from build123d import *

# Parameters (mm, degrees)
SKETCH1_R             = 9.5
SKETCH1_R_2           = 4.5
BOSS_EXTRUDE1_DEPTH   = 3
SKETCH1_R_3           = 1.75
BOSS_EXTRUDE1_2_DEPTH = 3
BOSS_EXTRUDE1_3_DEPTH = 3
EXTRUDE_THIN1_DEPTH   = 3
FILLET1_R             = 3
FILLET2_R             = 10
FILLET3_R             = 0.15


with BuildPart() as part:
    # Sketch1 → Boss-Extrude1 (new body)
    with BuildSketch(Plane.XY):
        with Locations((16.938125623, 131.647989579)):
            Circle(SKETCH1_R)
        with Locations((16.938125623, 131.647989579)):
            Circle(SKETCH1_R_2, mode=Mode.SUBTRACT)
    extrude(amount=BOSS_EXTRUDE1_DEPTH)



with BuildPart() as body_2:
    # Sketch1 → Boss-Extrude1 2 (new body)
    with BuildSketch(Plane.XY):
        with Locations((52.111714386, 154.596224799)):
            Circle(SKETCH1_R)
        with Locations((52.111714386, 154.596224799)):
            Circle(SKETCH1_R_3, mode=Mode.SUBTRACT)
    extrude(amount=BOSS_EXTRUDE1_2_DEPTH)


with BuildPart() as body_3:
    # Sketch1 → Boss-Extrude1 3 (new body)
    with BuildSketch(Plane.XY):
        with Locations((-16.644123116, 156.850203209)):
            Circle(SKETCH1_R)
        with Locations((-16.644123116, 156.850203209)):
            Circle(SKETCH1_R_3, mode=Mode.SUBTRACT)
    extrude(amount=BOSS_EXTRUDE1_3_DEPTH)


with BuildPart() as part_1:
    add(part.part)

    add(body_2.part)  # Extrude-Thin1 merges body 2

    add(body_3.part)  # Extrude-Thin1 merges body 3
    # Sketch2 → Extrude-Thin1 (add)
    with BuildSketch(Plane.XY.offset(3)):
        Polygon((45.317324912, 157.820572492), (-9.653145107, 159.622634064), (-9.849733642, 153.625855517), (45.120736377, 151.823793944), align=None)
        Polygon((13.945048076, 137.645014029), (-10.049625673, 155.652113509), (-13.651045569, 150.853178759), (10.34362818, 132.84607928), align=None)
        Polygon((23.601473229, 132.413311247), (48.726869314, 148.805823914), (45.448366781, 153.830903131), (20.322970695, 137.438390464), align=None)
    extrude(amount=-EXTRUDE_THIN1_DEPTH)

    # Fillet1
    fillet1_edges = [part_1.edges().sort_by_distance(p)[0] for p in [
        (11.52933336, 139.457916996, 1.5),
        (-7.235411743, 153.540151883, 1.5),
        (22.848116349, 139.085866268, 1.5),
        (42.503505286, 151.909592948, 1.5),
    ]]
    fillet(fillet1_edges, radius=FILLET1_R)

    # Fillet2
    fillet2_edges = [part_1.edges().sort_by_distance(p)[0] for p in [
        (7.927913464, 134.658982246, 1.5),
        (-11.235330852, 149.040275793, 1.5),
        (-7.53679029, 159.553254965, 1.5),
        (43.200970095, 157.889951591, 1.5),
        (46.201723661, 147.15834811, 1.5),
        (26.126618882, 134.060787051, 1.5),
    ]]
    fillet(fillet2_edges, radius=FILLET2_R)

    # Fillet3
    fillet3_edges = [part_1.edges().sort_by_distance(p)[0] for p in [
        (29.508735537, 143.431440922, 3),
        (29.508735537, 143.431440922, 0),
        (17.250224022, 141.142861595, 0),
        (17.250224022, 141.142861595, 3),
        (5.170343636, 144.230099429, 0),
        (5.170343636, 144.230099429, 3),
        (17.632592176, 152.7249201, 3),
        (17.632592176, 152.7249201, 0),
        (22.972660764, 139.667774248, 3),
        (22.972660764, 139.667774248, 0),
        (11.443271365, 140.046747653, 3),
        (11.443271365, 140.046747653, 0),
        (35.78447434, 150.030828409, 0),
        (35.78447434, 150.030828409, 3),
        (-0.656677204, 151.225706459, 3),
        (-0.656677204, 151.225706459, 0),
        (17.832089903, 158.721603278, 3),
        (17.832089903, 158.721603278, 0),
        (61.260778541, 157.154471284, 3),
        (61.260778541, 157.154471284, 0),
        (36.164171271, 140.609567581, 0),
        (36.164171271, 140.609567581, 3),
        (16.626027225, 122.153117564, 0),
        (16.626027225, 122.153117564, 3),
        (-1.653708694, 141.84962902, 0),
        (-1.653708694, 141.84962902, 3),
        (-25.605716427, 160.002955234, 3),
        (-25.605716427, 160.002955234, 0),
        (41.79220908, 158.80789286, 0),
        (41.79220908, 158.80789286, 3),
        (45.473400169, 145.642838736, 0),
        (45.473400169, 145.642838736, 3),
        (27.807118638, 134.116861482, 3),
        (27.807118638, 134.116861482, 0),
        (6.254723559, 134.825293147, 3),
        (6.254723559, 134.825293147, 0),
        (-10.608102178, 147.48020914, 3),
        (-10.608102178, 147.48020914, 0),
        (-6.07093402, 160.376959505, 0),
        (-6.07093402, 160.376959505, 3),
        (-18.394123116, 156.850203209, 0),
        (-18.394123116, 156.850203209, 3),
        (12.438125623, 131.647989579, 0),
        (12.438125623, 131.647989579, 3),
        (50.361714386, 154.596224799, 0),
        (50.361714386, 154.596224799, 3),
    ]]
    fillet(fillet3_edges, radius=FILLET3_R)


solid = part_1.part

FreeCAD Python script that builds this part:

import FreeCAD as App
import Part
import Sketcher


def edges_at(feature, points):
    """Names of the edges that pass closest to the given points."""
    edges = feature.Shape.Edges
    near = lambda p: min(range(len(edges)), key=lambda i: edges[i].distToShape(Part.Vertex(*p))[0])
    return sorted({f"Edge{near(p) + 1}" for p in points})

doc = App.newDocument("Part")
body = doc.addObject("PartDesign::Body", "Body")

# Sketch on XY plane
sketch1 = body.newObject("Sketcher::SketchObject", "Sketch")
sketch1.AttachmentSupport = (doc.getObject("XY_Plane"), [""])
sketch1.MapMode = "FlatFace"
sketch1.addGeometry([
    Part.Circle(App.Vector(16.9, 131.6, 0), App.Vector(0, 0, 1), 9.5),
    Part.Circle(App.Vector(16.9, 131.6, 0), App.Vector(0, 0, 1), 4.5),
], False)
sketch1.addConstraint([
    Sketcher.Constraint("Coincident", 1, 3, 0, 3),
    Sketcher.Constraint("Diameter", 0, 19.0),
    Sketcher.Constraint("Diameter", 1, 9.0),
    Sketcher.Constraint("DistanceY", -1, 1, 0, 3, 131.64799),
    Sketcher.Constraint("DistanceX", -1, 1, 0, 3, 16.938126),
])
pad1 = body.newObject("PartDesign::Pad", "Pad")
pad1.Profile = sketch1
pad1.Length = 3
body2 = doc.addObject("PartDesign::Body", "Body001")

# Sketch on XY plane
sketch2 = body2.newObject("Sketcher::SketchObject", "Sketch001")
sketch2.AttachmentSupport = (doc.getObject("XY_Plane001"), [""])
sketch2.MapMode = "FlatFace"
sketch2.addGeometry([
    Part.Circle(App.Vector(52.1, 154.6, 0), App.Vector(0, 0, 1), 9.5),
    Part.Circle(App.Vector(52.1, 154.6, 0), App.Vector(0, 0, 1), 1.8),
], False)
sketch2.addConstraint([
    Sketcher.Constraint("Coincident", 1, 3, 0, 3),
    Sketcher.Constraint("Diameter", 0, 19.0),
    Sketcher.Constraint("Diameter", 1, 3.5),
    Sketcher.Constraint("DistanceX", -1, 1, 0, 3, 52.111714),
    Sketcher.Constraint("DistanceY", -1, 1, 0, 3, 154.596225),
])
pad2 = body2.newObject("PartDesign::Pad", "Pad001")
pad2.Profile = sketch2
pad2.Length = 3
body3 = doc.addObject("PartDesign::Body", "Body002")

# Sketch on XY plane
sketch3 = body3.newObject("Sketcher::SketchObject", "Sketch002")
sketch3.AttachmentSupport = (doc.getObject("XY_Plane002"), [""])
sketch3.MapMode = "FlatFace"
sketch3.addGeometry([
    Part.Circle(App.Vector(-16.6, 156.9, 0), App.Vector(0, 0, 1), 9.5),
    Part.Circle(App.Vector(-16.6, 156.9, 0), App.Vector(0, 0, 1), 1.8),
], False)
sketch3.addConstraint([
    Sketcher.Constraint("Coincident", 1, 3, 0, 3),
    Sketcher.Constraint("Diameter", 0, 19.0),
    Sketcher.Constraint("Diameter", 1, 3.5),
    Sketcher.Constraint("DistanceX", 0, 3, -1, 1, 16.644123),
    Sketcher.Constraint("DistanceY", -1, 1, 0, 3, 156.850203),
])
pad3 = body3.newObject("PartDesign::Pad", "Pad002")
pad3.Profile = sketch3
pad3.Length = 3
body.AllowCompound = True
doc.recompute()

boolean = body.newObject("PartDesign::Boolean", "Boolean")
boolean.Type = "Fuse"
boolean.addObjects([body2])
doc.recompute()

boolean2 = body.newObject("PartDesign::Boolean", "Boolean001")
boolean2.Type = "Fuse"
boolean2.addObjects([body3])

# Sketch on XY plane
sketch4 = body.newObject("Sketcher::SketchObject", "Sketch003")
sketch4.AttachmentSupport = (doc.getObject("XY_Plane"), [""])
sketch4.MapMode = "FlatFace"
sketch4.AttachmentOffset = App.Placement(App.Vector(0, 0, 3), App.Rotation())
sketch4.addGeometry([
    Part.LineSegment(App.Vector(20.32, 137.44, 0), App.Vector(23.6, 132.41, 0)),  # 0
    Part.LineSegment(App.Vector(23.6, 132.41, 0), App.Vector(48.73, 148.81, 0)),  # 1
    Part.LineSegment(App.Vector(48.73, 148.81, 0), App.Vector(45.45, 153.83, 0)),  # 2
    Part.LineSegment(App.Vector(45.45, 153.83, 0), App.Vector(45.18, 153.66, 0)),  # 3
    Part.LineSegment(App.Vector(45.18, 153.66, 0), App.Vector(45.32, 157.82, 0)),  # 4
    Part.LineSegment(App.Vector(45.32, 157.82, 0), App.Vector(-9.65, 159.62, 0)),  # 5
    Part.LineSegment(App.Vector(-9.65, 159.62, 0), App.Vector(-9.79, 155.46, 0)),  # 6
    Part.LineSegment(App.Vector(-9.79, 155.46, 0), App.Vector(-10.05, 155.65, 0)),  # 7
    Part.LineSegment(App.Vector(-10.05, 155.65, 0), App.Vector(-13.65, 150.85, 0)),  # 8
    Part.LineSegment(App.Vector(-13.65, 150.85, 0), App.Vector(10.34, 132.85, 0)),  # 9
    Part.LineSegment(App.Vector(10.34, 132.85, 0), App.Vector(13.95, 137.65, 0)),  # 10
    Part.LineSegment(App.Vector(13.95, 137.65, 0), App.Vector(-7.24, 153.54, 0)),  # 11
    Part.LineSegment(App.Vector(-7.24, 153.54, 0), App.Vector(42.5, 151.91, 0)),  # 12
    Part.LineSegment(App.Vector(42.5, 151.91, 0), App.Vector(20.32, 137.44, 0)),  # 13
], False)
sketch4.addConstraint([
    Sketcher.Constraint("Coincident", 0, 2, 1, 1),
    Sketcher.Constraint("Coincident", 1, 2, 2, 1),
    Sketcher.Constraint("Coincident", 2, 2, 3, 1),
    Sketcher.Constraint("Coincident", 3, 2, 4, 1),
    Sketcher.Constraint("Coincident", 4, 2, 5, 1),
    Sketcher.Constraint("Coincident", 5, 2, 6, 1),
    Sketcher.Constraint("Coincident", 6, 2, 7, 1),
    Sketcher.Constraint("Coincident", 7, 2, 8, 1),
    Sketcher.Constraint("Coincident", 8, 2, 9, 1),
    Sketcher.Constraint("Coincident", 9, 2, 10, 1),
    Sketcher.Constraint("Coincident", 10, 2, 11, 1),
    Sketcher.Constraint("Coincident", 11, 2, 12, 1),
    Sketcher.Constraint("Coincident", 12, 2, 13, 1),
    Sketcher.Constraint("Coincident", 13, 2, 0, 1),
    Sketcher.Constraint("Perpendicular", 0, 1),
    Sketcher.Constraint("Perpendicular", 1, 2),
    Sketcher.Constraint("Perpendicular", 2, 3),
    Sketcher.Constraint("Perpendicular", 4, 5),
    Sketcher.Constraint("Perpendicular", 5, 6),
    Sketcher.Constraint("Perpendicular", 7, 8),
    Sketcher.Constraint("Perpendicular", 8, 9),
    Sketcher.Constraint("Perpendicular", 9, 10),
    Sketcher.Constraint("Perpendicular", 10, 11),
    Sketcher.Constraint("Perpendicular", 6, 12),
    Sketcher.Constraint("Parallel", 3, 13),
    Sketcher.Constraint("Equal", 0, 2),
    Sketcher.Constraint("Equal", 2, 8),
    Sketcher.Constraint("Equal", 1, 9),
    Sketcher.Constraint("Equal", 8, 10),
    Sketcher.Constraint("Distance", 0, 6.0),
    Sketcher.Constraint("Distance", 1, 30.0),
    Sketcher.Constraint("Distance", 5, 55.0),
    Sketcher.Constraint("DistanceX", 7, 2, 0, 2, 33.651099),
    Sketcher.Constraint("DistanceX", 8, 2, 5, 2, 3.9979),
    Sketcher.Constraint("DistanceY", 9, 2, 8, 2, 18.007099),
    Sketcher.Constraint("DistanceY", 11, 2, 6, 2, 1.916899),
    Sketcher.Constraint("Distance", 6, 4.167821),
    Sketcher.Constraint("Distance", 11, 26.481452),
    Sketcher.Constraint("DistanceY", -1, 1, 0, 2, 132.413311),
    Sketcher.Constraint("DistanceX", -1, 1, 1, 2, 48.726869),
    Sketcher.Constraint("DistanceX", -1, 1, 3, 2, 45.180812),
    Sketcher.Constraint("DistanceY", -1, 1, 6, 2, 155.457051),
])
pad4 = body.newObject("PartDesign::Pad", "Pad003")
pad4.Profile = sketch4
pad4.Length = 3
pad4.Reversed = True
doc.recompute()

fillet = body.newObject("PartDesign::Fillet", "Fillet")
fillet.Base = (pad4, edges_at(pad4, [
    (11.529, 139.458, 1.5),
    (-7.235, 153.54, 1.5),
    (22.848, 139.086, 1.5),
    (42.504, 151.91, 1.5),
]))
fillet.Radius = 3
doc.recompute()

fillet2 = body.newObject("PartDesign::Fillet", "Fillet001")
fillet2.Base = (fillet, edges_at(fillet, [
    (7.928, 134.659, 1.5),
    (-11.235, 149.04, 1.5),
    (-7.537, 159.553, 1.5),
    (43.201, 157.89, 1.5),
    (46.202, 147.158, 1.5),
    (26.127, 134.061, 1.5),
]))
fillet2.Radius = 10
doc.recompute()

fillet3 = body.newObject("PartDesign::Fillet", "Fillet002")
fillet3.Base = (fillet2, edges_at(fillet2, [
    (29.509, 143.431, 3),
    (29.509, 143.431, 0),
    (17.25, 141.143, 0),
    (17.25, 141.143, 3),
    (5.17, 144.23, 0),
    (5.17, 144.23, 3),
    (17.633, 152.725, 3),
    (17.633, 152.725, 0),
    (22.973, 139.668, 3),
    (22.973, 139.668, 0),
    (11.443, 140.047, 3),
    (11.443, 140.047, 0),
    (35.784, 150.031, 0),
    (35.784, 150.031, 3),
    (-0.657, 151.226, 3),
    (-0.657, 151.226, 0),
    (17.832, 158.722, 3),
    (17.832, 158.722, 0),
    (61.261, 157.154, 3),
    (61.261, 157.154, 0),
    (36.164, 140.61, 0),
    (36.164, 140.61, 3),
    (16.626, 122.153, 0),
    (16.626, 122.153, 3),
    (-1.654, 141.85, 0),
    (-1.654, 141.85, 3),
    (-25.606, 160.003, 3),
    (-25.606, 160.003, 0),
    (41.792, 158.808, 0),
    (41.792, 158.808, 3),
    (45.473, 145.643, 0),
    (45.473, 145.643, 3),
    (27.807, 134.117, 3),
    (27.807, 134.117, 0),
    (6.255, 134.825, 3),
    (6.255, 134.825, 0),
    (-10.608, 147.48, 3),
    (-10.608, 147.48, 0),
    (-6.071, 160.377, 0),
    (-6.071, 160.377, 3),
    (-18.394, 156.85, 0),
    (-18.394, 156.85, 3),
    (12.438, 131.648, 0),
    (12.438, 131.648, 3),
    (50.362, 154.596, 0),
    (50.362, 154.596, 3),
]))
fillet3.Radius = 0.15

doc.recompute()
